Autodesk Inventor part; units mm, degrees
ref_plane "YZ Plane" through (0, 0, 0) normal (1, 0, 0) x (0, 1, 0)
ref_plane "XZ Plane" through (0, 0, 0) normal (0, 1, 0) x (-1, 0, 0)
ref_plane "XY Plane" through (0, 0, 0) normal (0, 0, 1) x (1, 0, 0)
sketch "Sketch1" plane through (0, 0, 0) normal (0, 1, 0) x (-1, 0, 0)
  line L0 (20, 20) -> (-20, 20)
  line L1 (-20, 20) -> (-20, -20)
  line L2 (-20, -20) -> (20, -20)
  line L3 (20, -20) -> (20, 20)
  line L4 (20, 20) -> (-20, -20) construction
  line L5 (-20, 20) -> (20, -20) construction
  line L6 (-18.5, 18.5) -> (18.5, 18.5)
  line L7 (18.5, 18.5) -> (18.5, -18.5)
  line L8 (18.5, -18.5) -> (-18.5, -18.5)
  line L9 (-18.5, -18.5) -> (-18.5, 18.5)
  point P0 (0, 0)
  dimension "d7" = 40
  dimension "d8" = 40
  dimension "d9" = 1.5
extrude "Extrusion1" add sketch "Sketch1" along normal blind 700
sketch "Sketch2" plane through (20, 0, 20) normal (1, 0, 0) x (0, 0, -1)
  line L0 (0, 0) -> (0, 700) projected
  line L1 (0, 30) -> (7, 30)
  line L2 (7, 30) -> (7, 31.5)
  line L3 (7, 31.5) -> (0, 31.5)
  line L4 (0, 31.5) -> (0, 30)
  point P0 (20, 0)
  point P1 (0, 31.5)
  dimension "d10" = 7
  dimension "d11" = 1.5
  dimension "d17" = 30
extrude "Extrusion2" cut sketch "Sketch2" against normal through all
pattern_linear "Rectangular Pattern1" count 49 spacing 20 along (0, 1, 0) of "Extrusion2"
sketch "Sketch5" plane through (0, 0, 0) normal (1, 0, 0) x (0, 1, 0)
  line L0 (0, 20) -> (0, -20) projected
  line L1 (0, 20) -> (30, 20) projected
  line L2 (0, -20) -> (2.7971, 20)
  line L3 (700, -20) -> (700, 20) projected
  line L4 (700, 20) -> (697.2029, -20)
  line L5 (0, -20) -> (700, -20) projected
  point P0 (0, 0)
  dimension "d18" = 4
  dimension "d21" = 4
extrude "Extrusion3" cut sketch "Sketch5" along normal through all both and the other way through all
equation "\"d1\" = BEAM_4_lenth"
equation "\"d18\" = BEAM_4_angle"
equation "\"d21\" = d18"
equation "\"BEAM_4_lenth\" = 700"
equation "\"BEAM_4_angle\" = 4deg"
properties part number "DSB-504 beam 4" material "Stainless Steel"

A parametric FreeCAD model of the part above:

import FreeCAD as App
import Part
import Sketcher

V = App.Vector
Q = App.Units.Quantity

doc = App.newDocument("Part")
body = doc.addObject("PartDesign::Body", "Body")

# Sketch on XZ plane
sketch1 = doc.addObject("Sketcher::SketchObject", "Sketch")
body.addObject(sketch1)
sketch1.AttachmentSupport = (doc.XZ_Plane, [""])
sketch1.MapMode = "FlatFace"
sketch1.addGeometry([
    Part.LineSegment(V(-20, -20, 0), V(-20, 20, 0)),  # 0
    Part.LineSegment(V(-20, 20, 0), V(20, 20, 0)),  # 1
    Part.LineSegment(V(20, 20, 0), V(20, -20, 0)),  # 2
    Part.LineSegment(V(20, -20, 0), V(-20, -20, 0)),  # 3
    Part.LineSegment(V(18.5, -18.5, 0), V(18.5, 18.5, 0)),  # 4
    Part.LineSegment(V(18.5, 18.5, 0), V(-18.5, 18.5, 0)),  # 5
    Part.LineSegment(V(-18.5, 18.5, 0), V(-18.5, -18.5, 0)),  # 6
    Part.LineSegment(V(-18.5, -18.5, 0), V(18.5, -18.5, 0)),  # 7
], False)
sketch1.addConstraint([
    Sketcher.Constraint("Coincident", 0, 2, 1, 1),
    Sketcher.Constraint("Coincident", 1, 2, 2, 1),
    Sketcher.Constraint("Coincident", 2, 2, 3, 1),
    Sketcher.Constraint("Coincident", 3, 2, 0, 1),
    Sketcher.Constraint("Coincident", 4, 2, 5, 1),
    Sketcher.Constraint("Coincident", 5, 2, 6, 1),
    Sketcher.Constraint("Coincident", 6, 2, 7, 1),
    Sketcher.Constraint("Coincident", 7, 2, 4, 1),
    Sketcher.Constraint("Vertical", 0),
    Sketcher.Constraint("Horizontal", 1),
    Sketcher.Constraint("Vertical", 2),
    Sketcher.Constraint("Horizontal", 3),
    Sketcher.Constraint("Vertical", 4),
    Sketcher.Constraint("Horizontal", 5),
    Sketcher.Constraint("Vertical", 6),
    Sketcher.Constraint("Horizontal", 7),
    Sketcher.Constraint("Symmetric", 0, 2, 2, 2, -1, 1),
    Sketcher.Constraint("Symmetric", 4, 2, 6, 2, -1, 1),
    Sketcher.Constraint("Equal", 3, 0),
    Sketcher.Constraint("Equal", 7, 4),
    Sketcher.Constraint("DistanceX", 1, 1, 1, 2, Q("40 mm")),
    Sketcher.Constraint("DistanceX", 4, 2, 1, 2, Q("1.5 mm")),
])
pad1 = doc.addObject("PartDesign::Pad", "Pad")
body.addObject(pad1)
pad1.Profile = sketch1
pad1.Length = 700
pad1.Reversed = True

# Sketch on YZ plane
sketch2 = doc.addObject("Sketcher::SketchObject", "Sketch001")
body.addObject(sketch2)
sketch2.AttachmentSupport = (doc.YZ_Plane, [""])
sketch2.MapMode = "FlatFace"
sketch2.AttachmentOffset = App.Placement(V(0, 0, 20), App.Rotation())
sketch2.addGeometry([
    Part.LineSegment(V(31.5, 20, 0), V(30, 20, 0)),
    Part.LineSegment(V(30, 20, 0), V(30, 13, 0)),
    Part.LineSegment(V(30, 13, 0), V(31.5, 13, 0)),
    Part.LineSegment(V(31.5, 13, 0), V(31.5, 20, 0)),
], False)
sketch2.addConstraint([
    Sketcher.Constraint("Coincident", 0, 2, 1, 1),
    Sketcher.Constraint("Coincident", 1, 2, 2, 1),
    Sketcher.Constraint("Coincident", 2, 2, 3, 1),
    Sketcher.Constraint("Coincident", 3, 2, 0, 1),
    Sketcher.Constraint("Horizontal", 0),
    Sketcher.Constraint("Vertical", 1),
    Sketcher.Constraint("Horizontal", 2),
    Sketcher.Constraint("Vertical", 3),
    Sketcher.Constraint("DistanceY", 1, 2, 1, 1, Q("7 mm")),
    Sketcher.Constraint("DistanceX", 0, 2, 0, 1, Q("1.5 mm")),
    Sketcher.Constraint("DistanceX", -1, 1, 0, 2, Q("30 mm")),
    Sketcher.Constraint("DistanceY", -1, 1, 0, 2, Q("20 mm")),
])
pocket1 = doc.addObject("PartDesign::Pocket", "Pocket")
body.addObject(pocket1)
pocket1.Profile = sketch2
pocket1.Type = "ThroughAll"
doc.recompute()

linearpattern = doc.addObject("PartDesign::LinearPattern", "LinearPattern")
body.addObject(linearpattern)
linearpattern.Originals = [pocket1]
linearpattern.Direction = (doc.Y_Axis, [""])
linearpattern.Mode = "offset"
linearpattern.Offset = 20
linearpattern.Occurrences = 49
body.Tip = linearpattern

# Sketch on YZ plane
sketch3 = doc.addObject("Sketcher::SketchObject", "Sketch002")
body.addObject(sketch3)
sketch3.AttachmentSupport = (doc.YZ_Plane, [""])
sketch3.MapMode = "FlatFace"
sketch3.addGeometry([
    Part.LineSegment(V(2.7971, 20, 0), V(0, 20, 0)),  # 0
    Part.LineSegment(V(0, 20, 0), V(0, -20, 0)),  # 1
    Part.LineSegment(V(0, -20, 0), V(2.7971, 20, 0)),  # 2
    Part.LineSegment(V(700, 20, 0), V(697.2029, -20, 0)),  # 3
    Part.LineSegment(V(697.2029, -20, 0), V(700, -20, 0)),  # 4
    Part.LineSegment(V(700, -20, 0), V(700, 20, 0)),  # 5
], False)
sketch3.addConstraint([
    Sketcher.Constraint("Coincident", 0, 2, 1, 1),
    Sketcher.Constraint("Coincident", 1, 2, 2, 1),
    Sketcher.Constraint("Coincident", 2, 2, 0, 1),
    Sketcher.Constraint("Coincident", 3, 2, 4, 1),
    Sketcher.Constraint("Coincident", 4, 2, 5, 1),
    Sketcher.Constraint("Coincident", 5, 2, 3, 1),
    Sketcher.Constraint("Horizontal", 0),
    Sketcher.Constraint("Vertical", 1),
    Sketcher.Constraint("Horizontal", 4),
    Sketcher.Constraint("Vertical", 5),
    Sketcher.Constraint("Symmetric", 0, 2, 1, 2, -1, 1),
    Sketcher.Constraint("Parallel", 2, 3),
    Sketcher.Constraint("Horizontal", 1, 2, 3, 2),
    Sketcher.Constraint("Horizontal", 2, 2, 5, 2),
    Sketcher.Constraint("DistanceY", 1, 2, 1, 1, Q("40 mm")),
    Sketcher.Constraint("Angle", 2, Q("86 deg")),
    Sketcher.Constraint("DistanceX", -1, 1, 4, 2, Q("700 mm")),
])
pocket2 = doc.addObject("PartDesign::Pocket", "Pocket001")
body.addObject(pocket2)
pocket2.Profile = sketch3
pocket2.Type = "ThroughAll"
pocket2.Midplane = True

doc.recompute()
